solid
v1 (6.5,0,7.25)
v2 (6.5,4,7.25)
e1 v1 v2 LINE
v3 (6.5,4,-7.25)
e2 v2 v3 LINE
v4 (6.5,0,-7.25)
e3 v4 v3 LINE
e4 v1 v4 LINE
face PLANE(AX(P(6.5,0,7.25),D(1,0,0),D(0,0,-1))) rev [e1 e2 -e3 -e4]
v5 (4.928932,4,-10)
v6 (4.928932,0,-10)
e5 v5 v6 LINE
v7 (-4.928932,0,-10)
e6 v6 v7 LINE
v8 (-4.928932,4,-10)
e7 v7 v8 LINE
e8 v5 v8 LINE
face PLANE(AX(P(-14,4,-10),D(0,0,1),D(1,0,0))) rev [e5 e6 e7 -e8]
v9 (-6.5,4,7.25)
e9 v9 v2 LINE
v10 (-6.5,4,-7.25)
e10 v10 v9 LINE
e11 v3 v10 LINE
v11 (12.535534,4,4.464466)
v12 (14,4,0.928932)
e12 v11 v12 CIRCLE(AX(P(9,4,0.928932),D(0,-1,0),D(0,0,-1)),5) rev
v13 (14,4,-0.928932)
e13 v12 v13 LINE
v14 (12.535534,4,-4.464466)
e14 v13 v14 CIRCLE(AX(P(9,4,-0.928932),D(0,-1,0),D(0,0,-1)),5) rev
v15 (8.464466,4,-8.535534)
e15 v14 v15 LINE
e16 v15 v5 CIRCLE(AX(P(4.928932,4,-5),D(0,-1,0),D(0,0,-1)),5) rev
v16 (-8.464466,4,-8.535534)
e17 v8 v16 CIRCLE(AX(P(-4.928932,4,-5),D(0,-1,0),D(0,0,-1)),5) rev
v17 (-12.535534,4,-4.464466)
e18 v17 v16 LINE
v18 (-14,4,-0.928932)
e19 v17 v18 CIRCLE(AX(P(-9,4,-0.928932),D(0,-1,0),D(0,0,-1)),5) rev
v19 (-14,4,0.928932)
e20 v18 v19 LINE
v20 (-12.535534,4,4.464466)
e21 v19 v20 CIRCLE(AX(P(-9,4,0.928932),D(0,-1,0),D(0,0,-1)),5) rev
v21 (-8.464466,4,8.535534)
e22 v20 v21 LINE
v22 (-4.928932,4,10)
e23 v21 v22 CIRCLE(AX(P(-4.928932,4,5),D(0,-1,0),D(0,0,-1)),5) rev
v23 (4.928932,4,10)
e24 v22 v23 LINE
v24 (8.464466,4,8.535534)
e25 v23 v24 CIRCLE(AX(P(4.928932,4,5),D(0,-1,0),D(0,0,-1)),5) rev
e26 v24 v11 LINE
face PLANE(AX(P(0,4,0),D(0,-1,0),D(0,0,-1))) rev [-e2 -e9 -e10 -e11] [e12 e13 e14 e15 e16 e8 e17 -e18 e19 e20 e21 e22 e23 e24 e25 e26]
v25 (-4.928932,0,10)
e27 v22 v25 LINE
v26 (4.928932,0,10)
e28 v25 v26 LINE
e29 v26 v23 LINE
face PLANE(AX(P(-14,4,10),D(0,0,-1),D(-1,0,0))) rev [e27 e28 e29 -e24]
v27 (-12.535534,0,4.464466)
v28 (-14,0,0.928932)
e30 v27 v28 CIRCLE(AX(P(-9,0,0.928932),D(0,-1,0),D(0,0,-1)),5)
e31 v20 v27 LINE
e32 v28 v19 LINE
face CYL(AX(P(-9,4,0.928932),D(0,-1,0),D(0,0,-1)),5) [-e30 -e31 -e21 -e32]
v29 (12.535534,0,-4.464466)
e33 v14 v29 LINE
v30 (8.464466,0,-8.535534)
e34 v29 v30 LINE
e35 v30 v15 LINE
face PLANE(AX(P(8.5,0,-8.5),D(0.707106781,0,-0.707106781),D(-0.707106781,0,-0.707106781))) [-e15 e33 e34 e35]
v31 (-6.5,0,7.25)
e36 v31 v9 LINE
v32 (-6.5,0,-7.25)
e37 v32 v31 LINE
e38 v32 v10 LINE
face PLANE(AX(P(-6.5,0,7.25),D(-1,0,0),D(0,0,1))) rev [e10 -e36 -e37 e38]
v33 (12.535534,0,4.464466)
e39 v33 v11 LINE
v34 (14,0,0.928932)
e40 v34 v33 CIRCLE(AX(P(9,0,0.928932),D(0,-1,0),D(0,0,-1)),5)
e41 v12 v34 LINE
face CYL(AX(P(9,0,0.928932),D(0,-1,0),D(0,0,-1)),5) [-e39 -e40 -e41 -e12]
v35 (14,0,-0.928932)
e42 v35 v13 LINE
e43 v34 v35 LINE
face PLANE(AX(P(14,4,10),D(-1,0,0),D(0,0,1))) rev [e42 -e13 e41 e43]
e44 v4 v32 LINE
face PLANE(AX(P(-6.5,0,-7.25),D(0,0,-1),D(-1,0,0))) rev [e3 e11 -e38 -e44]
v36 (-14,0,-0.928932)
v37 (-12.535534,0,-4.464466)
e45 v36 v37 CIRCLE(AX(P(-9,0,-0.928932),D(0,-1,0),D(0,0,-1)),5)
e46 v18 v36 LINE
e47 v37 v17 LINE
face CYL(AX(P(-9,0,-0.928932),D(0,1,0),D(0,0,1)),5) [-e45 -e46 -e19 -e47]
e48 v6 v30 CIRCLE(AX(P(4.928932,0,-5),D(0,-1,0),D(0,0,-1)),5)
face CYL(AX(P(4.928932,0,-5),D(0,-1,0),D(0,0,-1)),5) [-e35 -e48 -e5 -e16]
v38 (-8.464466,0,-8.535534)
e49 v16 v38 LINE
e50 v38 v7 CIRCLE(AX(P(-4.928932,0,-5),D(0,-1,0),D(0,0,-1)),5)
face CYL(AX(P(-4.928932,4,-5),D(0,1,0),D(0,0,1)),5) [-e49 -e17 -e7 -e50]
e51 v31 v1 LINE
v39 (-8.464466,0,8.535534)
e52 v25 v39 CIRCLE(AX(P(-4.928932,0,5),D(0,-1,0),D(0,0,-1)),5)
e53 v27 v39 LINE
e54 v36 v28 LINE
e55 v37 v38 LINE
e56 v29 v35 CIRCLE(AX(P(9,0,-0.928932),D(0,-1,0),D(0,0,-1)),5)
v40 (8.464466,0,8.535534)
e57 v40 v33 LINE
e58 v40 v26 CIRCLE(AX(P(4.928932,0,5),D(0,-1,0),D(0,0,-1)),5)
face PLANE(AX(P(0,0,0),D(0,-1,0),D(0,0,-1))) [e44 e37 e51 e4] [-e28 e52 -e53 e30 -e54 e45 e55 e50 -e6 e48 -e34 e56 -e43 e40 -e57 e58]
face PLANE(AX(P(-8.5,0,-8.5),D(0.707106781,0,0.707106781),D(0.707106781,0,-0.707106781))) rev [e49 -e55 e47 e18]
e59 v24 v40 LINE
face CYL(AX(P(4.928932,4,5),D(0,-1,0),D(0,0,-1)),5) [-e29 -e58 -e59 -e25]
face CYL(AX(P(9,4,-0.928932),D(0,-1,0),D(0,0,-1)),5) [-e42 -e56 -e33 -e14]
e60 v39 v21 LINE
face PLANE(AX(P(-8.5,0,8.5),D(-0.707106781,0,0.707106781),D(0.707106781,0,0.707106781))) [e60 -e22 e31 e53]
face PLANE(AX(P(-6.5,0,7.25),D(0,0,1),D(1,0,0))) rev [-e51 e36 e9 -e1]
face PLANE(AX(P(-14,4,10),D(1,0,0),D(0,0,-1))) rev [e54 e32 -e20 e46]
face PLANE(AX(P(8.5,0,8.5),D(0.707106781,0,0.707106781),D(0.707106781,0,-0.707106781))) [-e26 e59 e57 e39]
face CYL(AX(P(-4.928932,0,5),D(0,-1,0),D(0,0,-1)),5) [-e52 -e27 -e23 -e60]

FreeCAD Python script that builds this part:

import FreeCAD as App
import Part
import Sketcher
from FreeCAD import Vector
Q = App.Units.Quantity


def edges_at(feature, points):
    """Names of the edges that pass closest to the given points."""
    edges = feature.Shape.Edges
    near = lambda p: min(range(len(edges)), key=lambda i: edges[i].distToShape(Part.Vertex(*p))[0])
    return sorted({f"Edge{near(p) + 1}" for p in points})

doc = App.newDocument("Part")
body = doc.addObject("PartDesign::Body", "Body")

# Sketch on XZ plane
sketch1 = body.newObject("Sketcher::SketchObject", "Sketch")
sketch1.AttachmentSupport = (doc.getObject("XZ_Plane"), [""])
sketch1.MapMode = "FlatFace"
sketch1.addGeometry([
    Part.LineSegment(Vector(-14, -10, 0), Vector(-14, 10, 0)),
    Part.LineSegment(Vector(-14, 10, 0), Vector(14, 10, 0)),
    Part.LineSegment(Vector(14, 10, 0), Vector(14, -10, 0)),
    Part.LineSegment(Vector(14, -10, 0), Vector(-14, -10, 0)),
], False)
sketch1.addConstraint([
    Sketcher.Constraint("Coincident", 0, 2, 1, 1),
    Sketcher.Constraint("Coincident", 1, 2, 2, 1),
    Sketcher.Constraint("Coincident", 2, 2, 3, 1),
    Sketcher.Constraint("Coincident", 3, 2, 0, 1),
    Sketcher.Constraint("Vertical", 0),
    Sketcher.Constraint("Horizontal", 1),
    Sketcher.Constraint("Vertical", 2),
    Sketcher.Constraint("Horizontal", 3),
    Sketcher.Constraint("Symmetric", 0, 2, 2, 2, -1, 1),
    Sketcher.Constraint("DistanceX", 1, 1, 1, 2, Q("28 mm")),
    Sketcher.Constraint("DistanceY", 0, 1, 0, 2, Q("20 mm")),
])
pad1 = body.newObject("PartDesign::Pad", "Pad")
pad1.Profile = sketch1
pad1.Length = 4
pad1.Reversed = True

# Sketch on XZ plane
sketch2 = body.newObject("Sketcher::SketchObject", "Sketch001")
sketch2.AttachmentSupport = (doc.getObject("XZ_Plane"), [""])
sketch2.MapMode = "FlatFace"
sketch2.AttachmentOffset = App.Placement(Vector(0, 0, -4), App.Rotation())
sketch2.addGeometry([
    Part.LineSegment(Vector(-6, -7, 0), Vector(-6, 7, 0)),
    Part.LineSegment(Vector(-6, 7, 0), Vector(6, 7, 0)),
    Part.LineSegment(Vector(6, 7, 0), Vector(6, -7, 0)),
    Part.LineSegment(Vector(6, -7, 0), Vector(-6, -7, 0)),
], False)
sketch2.addConstraint([
    Sketcher.Constraint("Coincident", 0, 2, 1, 1),
    Sketcher.Constraint("Coincident", 1, 2, 2, 1),
    Sketcher.Constraint("Coincident", 2, 2, 3, 1),
    Sketcher.Constraint("Coincident", 3, 2, 0, 1),
    Sketcher.Constraint("Vertical", 0),
    Sketcher.Constraint("Horizontal", 1),
    Sketcher.Constraint("Vertical", 2),
    Sketcher.Constraint("Horizontal", 3),
    Sketcher.Constraint("Symmetric", 0, 2, 2, 2, -1, 1),
    Sketcher.Constraint("DistanceX", 1, 1, 1, 2, Q("13 mm")),
    Sketcher.Constraint("DistanceY", 0, 1, 0, 2, Q("14.5 mm")),
])
pocket1 = body.newObject("PartDesign::Pocket", "Pocket")
pocket1.Profile = sketch2
pocket1.Length = 4
pocket1.Reversed = True

# Sketch on XZ plane
sketch3 = body.newObject("Sketcher::SketchObject", "Sketch002")
sketch3.AttachmentSupport = (doc.getObject("XZ_Plane"), [""])
sketch3.MapMode = "FlatFace"
sketch3.AttachmentOffset = App.Placement(Vector(0, 0, -4), App.Rotation())
sketch3.addGeometry([
    Part.LineSegment(Vector(-14, -10, 0), Vector(-14, -3, 0)),  # 0
    Part.LineSegment(Vector(-14, -3, 0), Vector(-7, -10, 0)),  # 1
    Part.LineSegment(Vector(-7, -10, 0), Vector(-14, -10, 0)),  # 2
    Part.LineSegment(Vector(14, -10, 0), Vector(7, -10, 0)),  # 3
    Part.LineSegment(Vector(7, -10, 0), Vector(14, -3, 0)),  # 4
    Part.LineSegment(Vector(14, -3, 0), Vector(14, -10, 0)),  # 5
    Part.LineSegment(Vector(14, 3, 0), Vector(7, 10, 0)),  # 6
    Part.LineSegment(Vector(7, 10, 0), Vector(14, 10, 0)),  # 7
    Part.LineSegment(Vector(14, 10, 0), Vector(14, 3, 0)),  # 8
    Part.LineSegment(Vector(-7, 10, 0), Vector(-14, 3, 0)),  # 9
    Part.LineSegment(Vector(-14, 3, 0), Vector(-14, 10, 0)),  # 10
    Part.LineSegment(Vector(-14, 10, 0), Vector(-7, 10, 0)),  # 11
], False)
sketch3.addConstraint([
    Sketcher.Constraint("Coincident", 0, 2, 1, 1),
    Sketcher.Constraint("Coincident", 1, 2, 2, 1),
    Sketcher.Constraint("Coincident", 2, 2, 0, 1),
    Sketcher.Constraint("Coincident", 3, 2, 4, 1),
    Sketcher.Constraint("Coincident", 4, 2, 5, 1),
    Sketcher.Constraint("Coincident", 5, 2, 3, 1),
    Sketcher.Constraint("Coincident", 6, 2, 7, 1),
    Sketcher.Constraint("Coincident", 7, 2, 8, 1),
    Sketcher.Constraint("Coincident", 8, 2, 6, 1),
    Sketcher.Constraint("Coincident", 9, 2, 10, 1),
    Sketcher.Constraint("Coincident", 10, 2, 11, 1),
    Sketcher.Constraint("Coincident", 11, 2, 9, 1),
    Sketcher.Constraint("Vertical", 0),
    Sketcher.Constraint("Horizontal", 2),
    Sketcher.Constraint("Horizontal", 3),
    Sketcher.Constraint("Vertical", 5),
    Sketcher.Constraint("Horizontal", 7),
    Sketcher.Constraint("Vertical", 8),
    Sketcher.Constraint("Vertical", 10),
    Sketcher.Constraint("Horizontal", 11),
    Sketcher.Constraint("Symmetric", 1, 2, 6, 2, -1, 1),
    Sketcher.Constraint("Symmetric", 0, 2, 8, 2, -1, 1),
    Sketcher.Constraint("Symmetric", 4, 2, 9, 2, -1, 1),
    Sketcher.Constraint("Symmetric", 3, 2, 11, 2, -1, 1),
    Sketcher.Constraint("Symmetric", 1, 2, 3, 2, -2),
    Sketcher.Constraint("Symmetric", 0, 2, 4, 2, -2),
    Sketcher.Constraint("Perpendicular", 1, 4),
    Sketcher.Constraint("DistanceX", 2, 2, 2, 1, Q("7 mm")),
    Sketcher.Constraint("DistanceX", 0, 2, -1, 1, Q("14 mm")),
    Sketcher.Constraint("DistanceY", 0, 2, -1, 1, Q("3 mm")),
])
pocket2 = body.newObject("PartDesign::Pocket", "Pocket001")
pocket2.Profile = sketch3
pocket2.Length = 4
pocket2.Reversed = True
doc.recompute()

fillet = body.newObject("PartDesign::Fillet", "Fillet")
fillet.Base = (pocket2, edges_at(pocket2, [
    (-14, 2, 3),
    (-7, 2, 10),
    (7, 2, 10),
    (14, 2, 3),
    (14, 2, -3),
    (7, 2, -10),
    (-14, 2, -3),
    (-7, 2, -10),
]))
fillet.Radius = 5

doc.recompute()
